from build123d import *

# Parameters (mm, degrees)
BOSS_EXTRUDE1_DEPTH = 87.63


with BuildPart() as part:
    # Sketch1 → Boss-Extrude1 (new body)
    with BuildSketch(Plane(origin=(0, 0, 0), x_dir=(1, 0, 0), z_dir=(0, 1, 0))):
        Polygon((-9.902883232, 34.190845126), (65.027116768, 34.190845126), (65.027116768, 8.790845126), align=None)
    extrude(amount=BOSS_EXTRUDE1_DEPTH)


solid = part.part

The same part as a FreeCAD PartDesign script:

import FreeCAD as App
import Part
import Sketcher
from FreeCAD import Vector
Q = App.Units.Quantity


def add_polygon(sketch, points):
    """Adds a closed chain of lines whose ends are joined by coincident constraints."""
    first, n = sketch.GeometryCount, len(points)
    for a, b in zip(points, points[1:] + points[:1]):
        sketch.addGeometry(Part.LineSegment(App.Vector(*a, 0), App.Vector(*b, 0)), False)
    for i in range(n):
        sketch.addConstraint(Sketcher.Constraint("Coincident", first + i, 2, first + (i + 1) % n, 1))

doc = App.newDocument("Part")
params = doc.addObject("Spreadsheet::Sheet", "Params")
for row, (alias, value) in enumerate([
    ("sketch1_height", "1 in"),
    ("sketch1_width", "2.95 in"),
    ("pad1_length", "3.45 in"),
], start=1):
    params.set(f"A{row}", alias)
    params.set(f"B{row}", "=" + value)
    params.setAlias(f"B{row}", alias)

body = doc.addObject("PartDesign::Body", "Body")

# Sketch on XZ plane
sketch1 = body.newObject("Sketcher::SketchObject", "Sketch")
sketch1.AttachmentSupport = (doc.getObject("XZ_Plane"), [""])
sketch1.MapMode = "FlatFace"
add_polygon(sketch1, [(65.027117, -34.190845), (-9.902883, -34.190845), (65.027117, -8.790845)])  # lines 0-2
sketch1.addConstraint([
    Sketcher.Constraint("Horizontal", 0),
    Sketcher.Constraint("Vertical", 2),
    Sketcher.Constraint("DistanceY", 2, 2, 2, 1, Q("1 in")),
    Sketcher.Constraint("DistanceX", 0, 2, 0, 1, Q("2.95 in")),
    Sketcher.Constraint("DistanceX", 0, 2, -1, 1, 9.902883),
    Sketcher.Constraint("DistanceY", 0, 2, -1, 1, 34.190845),
])
sketch1.setExpression("Constraints[5]", "Params.sketch1_height")
sketch1.setExpression("Constraints[6]", "Params.sketch1_width")
pad1 = body.newObject("PartDesign::Pad", "Pad")
pad1.Profile = sketch1
pad1.setExpression("Length", "Params.pad1_length")
pad1.Reversed = True

doc.recompute()
